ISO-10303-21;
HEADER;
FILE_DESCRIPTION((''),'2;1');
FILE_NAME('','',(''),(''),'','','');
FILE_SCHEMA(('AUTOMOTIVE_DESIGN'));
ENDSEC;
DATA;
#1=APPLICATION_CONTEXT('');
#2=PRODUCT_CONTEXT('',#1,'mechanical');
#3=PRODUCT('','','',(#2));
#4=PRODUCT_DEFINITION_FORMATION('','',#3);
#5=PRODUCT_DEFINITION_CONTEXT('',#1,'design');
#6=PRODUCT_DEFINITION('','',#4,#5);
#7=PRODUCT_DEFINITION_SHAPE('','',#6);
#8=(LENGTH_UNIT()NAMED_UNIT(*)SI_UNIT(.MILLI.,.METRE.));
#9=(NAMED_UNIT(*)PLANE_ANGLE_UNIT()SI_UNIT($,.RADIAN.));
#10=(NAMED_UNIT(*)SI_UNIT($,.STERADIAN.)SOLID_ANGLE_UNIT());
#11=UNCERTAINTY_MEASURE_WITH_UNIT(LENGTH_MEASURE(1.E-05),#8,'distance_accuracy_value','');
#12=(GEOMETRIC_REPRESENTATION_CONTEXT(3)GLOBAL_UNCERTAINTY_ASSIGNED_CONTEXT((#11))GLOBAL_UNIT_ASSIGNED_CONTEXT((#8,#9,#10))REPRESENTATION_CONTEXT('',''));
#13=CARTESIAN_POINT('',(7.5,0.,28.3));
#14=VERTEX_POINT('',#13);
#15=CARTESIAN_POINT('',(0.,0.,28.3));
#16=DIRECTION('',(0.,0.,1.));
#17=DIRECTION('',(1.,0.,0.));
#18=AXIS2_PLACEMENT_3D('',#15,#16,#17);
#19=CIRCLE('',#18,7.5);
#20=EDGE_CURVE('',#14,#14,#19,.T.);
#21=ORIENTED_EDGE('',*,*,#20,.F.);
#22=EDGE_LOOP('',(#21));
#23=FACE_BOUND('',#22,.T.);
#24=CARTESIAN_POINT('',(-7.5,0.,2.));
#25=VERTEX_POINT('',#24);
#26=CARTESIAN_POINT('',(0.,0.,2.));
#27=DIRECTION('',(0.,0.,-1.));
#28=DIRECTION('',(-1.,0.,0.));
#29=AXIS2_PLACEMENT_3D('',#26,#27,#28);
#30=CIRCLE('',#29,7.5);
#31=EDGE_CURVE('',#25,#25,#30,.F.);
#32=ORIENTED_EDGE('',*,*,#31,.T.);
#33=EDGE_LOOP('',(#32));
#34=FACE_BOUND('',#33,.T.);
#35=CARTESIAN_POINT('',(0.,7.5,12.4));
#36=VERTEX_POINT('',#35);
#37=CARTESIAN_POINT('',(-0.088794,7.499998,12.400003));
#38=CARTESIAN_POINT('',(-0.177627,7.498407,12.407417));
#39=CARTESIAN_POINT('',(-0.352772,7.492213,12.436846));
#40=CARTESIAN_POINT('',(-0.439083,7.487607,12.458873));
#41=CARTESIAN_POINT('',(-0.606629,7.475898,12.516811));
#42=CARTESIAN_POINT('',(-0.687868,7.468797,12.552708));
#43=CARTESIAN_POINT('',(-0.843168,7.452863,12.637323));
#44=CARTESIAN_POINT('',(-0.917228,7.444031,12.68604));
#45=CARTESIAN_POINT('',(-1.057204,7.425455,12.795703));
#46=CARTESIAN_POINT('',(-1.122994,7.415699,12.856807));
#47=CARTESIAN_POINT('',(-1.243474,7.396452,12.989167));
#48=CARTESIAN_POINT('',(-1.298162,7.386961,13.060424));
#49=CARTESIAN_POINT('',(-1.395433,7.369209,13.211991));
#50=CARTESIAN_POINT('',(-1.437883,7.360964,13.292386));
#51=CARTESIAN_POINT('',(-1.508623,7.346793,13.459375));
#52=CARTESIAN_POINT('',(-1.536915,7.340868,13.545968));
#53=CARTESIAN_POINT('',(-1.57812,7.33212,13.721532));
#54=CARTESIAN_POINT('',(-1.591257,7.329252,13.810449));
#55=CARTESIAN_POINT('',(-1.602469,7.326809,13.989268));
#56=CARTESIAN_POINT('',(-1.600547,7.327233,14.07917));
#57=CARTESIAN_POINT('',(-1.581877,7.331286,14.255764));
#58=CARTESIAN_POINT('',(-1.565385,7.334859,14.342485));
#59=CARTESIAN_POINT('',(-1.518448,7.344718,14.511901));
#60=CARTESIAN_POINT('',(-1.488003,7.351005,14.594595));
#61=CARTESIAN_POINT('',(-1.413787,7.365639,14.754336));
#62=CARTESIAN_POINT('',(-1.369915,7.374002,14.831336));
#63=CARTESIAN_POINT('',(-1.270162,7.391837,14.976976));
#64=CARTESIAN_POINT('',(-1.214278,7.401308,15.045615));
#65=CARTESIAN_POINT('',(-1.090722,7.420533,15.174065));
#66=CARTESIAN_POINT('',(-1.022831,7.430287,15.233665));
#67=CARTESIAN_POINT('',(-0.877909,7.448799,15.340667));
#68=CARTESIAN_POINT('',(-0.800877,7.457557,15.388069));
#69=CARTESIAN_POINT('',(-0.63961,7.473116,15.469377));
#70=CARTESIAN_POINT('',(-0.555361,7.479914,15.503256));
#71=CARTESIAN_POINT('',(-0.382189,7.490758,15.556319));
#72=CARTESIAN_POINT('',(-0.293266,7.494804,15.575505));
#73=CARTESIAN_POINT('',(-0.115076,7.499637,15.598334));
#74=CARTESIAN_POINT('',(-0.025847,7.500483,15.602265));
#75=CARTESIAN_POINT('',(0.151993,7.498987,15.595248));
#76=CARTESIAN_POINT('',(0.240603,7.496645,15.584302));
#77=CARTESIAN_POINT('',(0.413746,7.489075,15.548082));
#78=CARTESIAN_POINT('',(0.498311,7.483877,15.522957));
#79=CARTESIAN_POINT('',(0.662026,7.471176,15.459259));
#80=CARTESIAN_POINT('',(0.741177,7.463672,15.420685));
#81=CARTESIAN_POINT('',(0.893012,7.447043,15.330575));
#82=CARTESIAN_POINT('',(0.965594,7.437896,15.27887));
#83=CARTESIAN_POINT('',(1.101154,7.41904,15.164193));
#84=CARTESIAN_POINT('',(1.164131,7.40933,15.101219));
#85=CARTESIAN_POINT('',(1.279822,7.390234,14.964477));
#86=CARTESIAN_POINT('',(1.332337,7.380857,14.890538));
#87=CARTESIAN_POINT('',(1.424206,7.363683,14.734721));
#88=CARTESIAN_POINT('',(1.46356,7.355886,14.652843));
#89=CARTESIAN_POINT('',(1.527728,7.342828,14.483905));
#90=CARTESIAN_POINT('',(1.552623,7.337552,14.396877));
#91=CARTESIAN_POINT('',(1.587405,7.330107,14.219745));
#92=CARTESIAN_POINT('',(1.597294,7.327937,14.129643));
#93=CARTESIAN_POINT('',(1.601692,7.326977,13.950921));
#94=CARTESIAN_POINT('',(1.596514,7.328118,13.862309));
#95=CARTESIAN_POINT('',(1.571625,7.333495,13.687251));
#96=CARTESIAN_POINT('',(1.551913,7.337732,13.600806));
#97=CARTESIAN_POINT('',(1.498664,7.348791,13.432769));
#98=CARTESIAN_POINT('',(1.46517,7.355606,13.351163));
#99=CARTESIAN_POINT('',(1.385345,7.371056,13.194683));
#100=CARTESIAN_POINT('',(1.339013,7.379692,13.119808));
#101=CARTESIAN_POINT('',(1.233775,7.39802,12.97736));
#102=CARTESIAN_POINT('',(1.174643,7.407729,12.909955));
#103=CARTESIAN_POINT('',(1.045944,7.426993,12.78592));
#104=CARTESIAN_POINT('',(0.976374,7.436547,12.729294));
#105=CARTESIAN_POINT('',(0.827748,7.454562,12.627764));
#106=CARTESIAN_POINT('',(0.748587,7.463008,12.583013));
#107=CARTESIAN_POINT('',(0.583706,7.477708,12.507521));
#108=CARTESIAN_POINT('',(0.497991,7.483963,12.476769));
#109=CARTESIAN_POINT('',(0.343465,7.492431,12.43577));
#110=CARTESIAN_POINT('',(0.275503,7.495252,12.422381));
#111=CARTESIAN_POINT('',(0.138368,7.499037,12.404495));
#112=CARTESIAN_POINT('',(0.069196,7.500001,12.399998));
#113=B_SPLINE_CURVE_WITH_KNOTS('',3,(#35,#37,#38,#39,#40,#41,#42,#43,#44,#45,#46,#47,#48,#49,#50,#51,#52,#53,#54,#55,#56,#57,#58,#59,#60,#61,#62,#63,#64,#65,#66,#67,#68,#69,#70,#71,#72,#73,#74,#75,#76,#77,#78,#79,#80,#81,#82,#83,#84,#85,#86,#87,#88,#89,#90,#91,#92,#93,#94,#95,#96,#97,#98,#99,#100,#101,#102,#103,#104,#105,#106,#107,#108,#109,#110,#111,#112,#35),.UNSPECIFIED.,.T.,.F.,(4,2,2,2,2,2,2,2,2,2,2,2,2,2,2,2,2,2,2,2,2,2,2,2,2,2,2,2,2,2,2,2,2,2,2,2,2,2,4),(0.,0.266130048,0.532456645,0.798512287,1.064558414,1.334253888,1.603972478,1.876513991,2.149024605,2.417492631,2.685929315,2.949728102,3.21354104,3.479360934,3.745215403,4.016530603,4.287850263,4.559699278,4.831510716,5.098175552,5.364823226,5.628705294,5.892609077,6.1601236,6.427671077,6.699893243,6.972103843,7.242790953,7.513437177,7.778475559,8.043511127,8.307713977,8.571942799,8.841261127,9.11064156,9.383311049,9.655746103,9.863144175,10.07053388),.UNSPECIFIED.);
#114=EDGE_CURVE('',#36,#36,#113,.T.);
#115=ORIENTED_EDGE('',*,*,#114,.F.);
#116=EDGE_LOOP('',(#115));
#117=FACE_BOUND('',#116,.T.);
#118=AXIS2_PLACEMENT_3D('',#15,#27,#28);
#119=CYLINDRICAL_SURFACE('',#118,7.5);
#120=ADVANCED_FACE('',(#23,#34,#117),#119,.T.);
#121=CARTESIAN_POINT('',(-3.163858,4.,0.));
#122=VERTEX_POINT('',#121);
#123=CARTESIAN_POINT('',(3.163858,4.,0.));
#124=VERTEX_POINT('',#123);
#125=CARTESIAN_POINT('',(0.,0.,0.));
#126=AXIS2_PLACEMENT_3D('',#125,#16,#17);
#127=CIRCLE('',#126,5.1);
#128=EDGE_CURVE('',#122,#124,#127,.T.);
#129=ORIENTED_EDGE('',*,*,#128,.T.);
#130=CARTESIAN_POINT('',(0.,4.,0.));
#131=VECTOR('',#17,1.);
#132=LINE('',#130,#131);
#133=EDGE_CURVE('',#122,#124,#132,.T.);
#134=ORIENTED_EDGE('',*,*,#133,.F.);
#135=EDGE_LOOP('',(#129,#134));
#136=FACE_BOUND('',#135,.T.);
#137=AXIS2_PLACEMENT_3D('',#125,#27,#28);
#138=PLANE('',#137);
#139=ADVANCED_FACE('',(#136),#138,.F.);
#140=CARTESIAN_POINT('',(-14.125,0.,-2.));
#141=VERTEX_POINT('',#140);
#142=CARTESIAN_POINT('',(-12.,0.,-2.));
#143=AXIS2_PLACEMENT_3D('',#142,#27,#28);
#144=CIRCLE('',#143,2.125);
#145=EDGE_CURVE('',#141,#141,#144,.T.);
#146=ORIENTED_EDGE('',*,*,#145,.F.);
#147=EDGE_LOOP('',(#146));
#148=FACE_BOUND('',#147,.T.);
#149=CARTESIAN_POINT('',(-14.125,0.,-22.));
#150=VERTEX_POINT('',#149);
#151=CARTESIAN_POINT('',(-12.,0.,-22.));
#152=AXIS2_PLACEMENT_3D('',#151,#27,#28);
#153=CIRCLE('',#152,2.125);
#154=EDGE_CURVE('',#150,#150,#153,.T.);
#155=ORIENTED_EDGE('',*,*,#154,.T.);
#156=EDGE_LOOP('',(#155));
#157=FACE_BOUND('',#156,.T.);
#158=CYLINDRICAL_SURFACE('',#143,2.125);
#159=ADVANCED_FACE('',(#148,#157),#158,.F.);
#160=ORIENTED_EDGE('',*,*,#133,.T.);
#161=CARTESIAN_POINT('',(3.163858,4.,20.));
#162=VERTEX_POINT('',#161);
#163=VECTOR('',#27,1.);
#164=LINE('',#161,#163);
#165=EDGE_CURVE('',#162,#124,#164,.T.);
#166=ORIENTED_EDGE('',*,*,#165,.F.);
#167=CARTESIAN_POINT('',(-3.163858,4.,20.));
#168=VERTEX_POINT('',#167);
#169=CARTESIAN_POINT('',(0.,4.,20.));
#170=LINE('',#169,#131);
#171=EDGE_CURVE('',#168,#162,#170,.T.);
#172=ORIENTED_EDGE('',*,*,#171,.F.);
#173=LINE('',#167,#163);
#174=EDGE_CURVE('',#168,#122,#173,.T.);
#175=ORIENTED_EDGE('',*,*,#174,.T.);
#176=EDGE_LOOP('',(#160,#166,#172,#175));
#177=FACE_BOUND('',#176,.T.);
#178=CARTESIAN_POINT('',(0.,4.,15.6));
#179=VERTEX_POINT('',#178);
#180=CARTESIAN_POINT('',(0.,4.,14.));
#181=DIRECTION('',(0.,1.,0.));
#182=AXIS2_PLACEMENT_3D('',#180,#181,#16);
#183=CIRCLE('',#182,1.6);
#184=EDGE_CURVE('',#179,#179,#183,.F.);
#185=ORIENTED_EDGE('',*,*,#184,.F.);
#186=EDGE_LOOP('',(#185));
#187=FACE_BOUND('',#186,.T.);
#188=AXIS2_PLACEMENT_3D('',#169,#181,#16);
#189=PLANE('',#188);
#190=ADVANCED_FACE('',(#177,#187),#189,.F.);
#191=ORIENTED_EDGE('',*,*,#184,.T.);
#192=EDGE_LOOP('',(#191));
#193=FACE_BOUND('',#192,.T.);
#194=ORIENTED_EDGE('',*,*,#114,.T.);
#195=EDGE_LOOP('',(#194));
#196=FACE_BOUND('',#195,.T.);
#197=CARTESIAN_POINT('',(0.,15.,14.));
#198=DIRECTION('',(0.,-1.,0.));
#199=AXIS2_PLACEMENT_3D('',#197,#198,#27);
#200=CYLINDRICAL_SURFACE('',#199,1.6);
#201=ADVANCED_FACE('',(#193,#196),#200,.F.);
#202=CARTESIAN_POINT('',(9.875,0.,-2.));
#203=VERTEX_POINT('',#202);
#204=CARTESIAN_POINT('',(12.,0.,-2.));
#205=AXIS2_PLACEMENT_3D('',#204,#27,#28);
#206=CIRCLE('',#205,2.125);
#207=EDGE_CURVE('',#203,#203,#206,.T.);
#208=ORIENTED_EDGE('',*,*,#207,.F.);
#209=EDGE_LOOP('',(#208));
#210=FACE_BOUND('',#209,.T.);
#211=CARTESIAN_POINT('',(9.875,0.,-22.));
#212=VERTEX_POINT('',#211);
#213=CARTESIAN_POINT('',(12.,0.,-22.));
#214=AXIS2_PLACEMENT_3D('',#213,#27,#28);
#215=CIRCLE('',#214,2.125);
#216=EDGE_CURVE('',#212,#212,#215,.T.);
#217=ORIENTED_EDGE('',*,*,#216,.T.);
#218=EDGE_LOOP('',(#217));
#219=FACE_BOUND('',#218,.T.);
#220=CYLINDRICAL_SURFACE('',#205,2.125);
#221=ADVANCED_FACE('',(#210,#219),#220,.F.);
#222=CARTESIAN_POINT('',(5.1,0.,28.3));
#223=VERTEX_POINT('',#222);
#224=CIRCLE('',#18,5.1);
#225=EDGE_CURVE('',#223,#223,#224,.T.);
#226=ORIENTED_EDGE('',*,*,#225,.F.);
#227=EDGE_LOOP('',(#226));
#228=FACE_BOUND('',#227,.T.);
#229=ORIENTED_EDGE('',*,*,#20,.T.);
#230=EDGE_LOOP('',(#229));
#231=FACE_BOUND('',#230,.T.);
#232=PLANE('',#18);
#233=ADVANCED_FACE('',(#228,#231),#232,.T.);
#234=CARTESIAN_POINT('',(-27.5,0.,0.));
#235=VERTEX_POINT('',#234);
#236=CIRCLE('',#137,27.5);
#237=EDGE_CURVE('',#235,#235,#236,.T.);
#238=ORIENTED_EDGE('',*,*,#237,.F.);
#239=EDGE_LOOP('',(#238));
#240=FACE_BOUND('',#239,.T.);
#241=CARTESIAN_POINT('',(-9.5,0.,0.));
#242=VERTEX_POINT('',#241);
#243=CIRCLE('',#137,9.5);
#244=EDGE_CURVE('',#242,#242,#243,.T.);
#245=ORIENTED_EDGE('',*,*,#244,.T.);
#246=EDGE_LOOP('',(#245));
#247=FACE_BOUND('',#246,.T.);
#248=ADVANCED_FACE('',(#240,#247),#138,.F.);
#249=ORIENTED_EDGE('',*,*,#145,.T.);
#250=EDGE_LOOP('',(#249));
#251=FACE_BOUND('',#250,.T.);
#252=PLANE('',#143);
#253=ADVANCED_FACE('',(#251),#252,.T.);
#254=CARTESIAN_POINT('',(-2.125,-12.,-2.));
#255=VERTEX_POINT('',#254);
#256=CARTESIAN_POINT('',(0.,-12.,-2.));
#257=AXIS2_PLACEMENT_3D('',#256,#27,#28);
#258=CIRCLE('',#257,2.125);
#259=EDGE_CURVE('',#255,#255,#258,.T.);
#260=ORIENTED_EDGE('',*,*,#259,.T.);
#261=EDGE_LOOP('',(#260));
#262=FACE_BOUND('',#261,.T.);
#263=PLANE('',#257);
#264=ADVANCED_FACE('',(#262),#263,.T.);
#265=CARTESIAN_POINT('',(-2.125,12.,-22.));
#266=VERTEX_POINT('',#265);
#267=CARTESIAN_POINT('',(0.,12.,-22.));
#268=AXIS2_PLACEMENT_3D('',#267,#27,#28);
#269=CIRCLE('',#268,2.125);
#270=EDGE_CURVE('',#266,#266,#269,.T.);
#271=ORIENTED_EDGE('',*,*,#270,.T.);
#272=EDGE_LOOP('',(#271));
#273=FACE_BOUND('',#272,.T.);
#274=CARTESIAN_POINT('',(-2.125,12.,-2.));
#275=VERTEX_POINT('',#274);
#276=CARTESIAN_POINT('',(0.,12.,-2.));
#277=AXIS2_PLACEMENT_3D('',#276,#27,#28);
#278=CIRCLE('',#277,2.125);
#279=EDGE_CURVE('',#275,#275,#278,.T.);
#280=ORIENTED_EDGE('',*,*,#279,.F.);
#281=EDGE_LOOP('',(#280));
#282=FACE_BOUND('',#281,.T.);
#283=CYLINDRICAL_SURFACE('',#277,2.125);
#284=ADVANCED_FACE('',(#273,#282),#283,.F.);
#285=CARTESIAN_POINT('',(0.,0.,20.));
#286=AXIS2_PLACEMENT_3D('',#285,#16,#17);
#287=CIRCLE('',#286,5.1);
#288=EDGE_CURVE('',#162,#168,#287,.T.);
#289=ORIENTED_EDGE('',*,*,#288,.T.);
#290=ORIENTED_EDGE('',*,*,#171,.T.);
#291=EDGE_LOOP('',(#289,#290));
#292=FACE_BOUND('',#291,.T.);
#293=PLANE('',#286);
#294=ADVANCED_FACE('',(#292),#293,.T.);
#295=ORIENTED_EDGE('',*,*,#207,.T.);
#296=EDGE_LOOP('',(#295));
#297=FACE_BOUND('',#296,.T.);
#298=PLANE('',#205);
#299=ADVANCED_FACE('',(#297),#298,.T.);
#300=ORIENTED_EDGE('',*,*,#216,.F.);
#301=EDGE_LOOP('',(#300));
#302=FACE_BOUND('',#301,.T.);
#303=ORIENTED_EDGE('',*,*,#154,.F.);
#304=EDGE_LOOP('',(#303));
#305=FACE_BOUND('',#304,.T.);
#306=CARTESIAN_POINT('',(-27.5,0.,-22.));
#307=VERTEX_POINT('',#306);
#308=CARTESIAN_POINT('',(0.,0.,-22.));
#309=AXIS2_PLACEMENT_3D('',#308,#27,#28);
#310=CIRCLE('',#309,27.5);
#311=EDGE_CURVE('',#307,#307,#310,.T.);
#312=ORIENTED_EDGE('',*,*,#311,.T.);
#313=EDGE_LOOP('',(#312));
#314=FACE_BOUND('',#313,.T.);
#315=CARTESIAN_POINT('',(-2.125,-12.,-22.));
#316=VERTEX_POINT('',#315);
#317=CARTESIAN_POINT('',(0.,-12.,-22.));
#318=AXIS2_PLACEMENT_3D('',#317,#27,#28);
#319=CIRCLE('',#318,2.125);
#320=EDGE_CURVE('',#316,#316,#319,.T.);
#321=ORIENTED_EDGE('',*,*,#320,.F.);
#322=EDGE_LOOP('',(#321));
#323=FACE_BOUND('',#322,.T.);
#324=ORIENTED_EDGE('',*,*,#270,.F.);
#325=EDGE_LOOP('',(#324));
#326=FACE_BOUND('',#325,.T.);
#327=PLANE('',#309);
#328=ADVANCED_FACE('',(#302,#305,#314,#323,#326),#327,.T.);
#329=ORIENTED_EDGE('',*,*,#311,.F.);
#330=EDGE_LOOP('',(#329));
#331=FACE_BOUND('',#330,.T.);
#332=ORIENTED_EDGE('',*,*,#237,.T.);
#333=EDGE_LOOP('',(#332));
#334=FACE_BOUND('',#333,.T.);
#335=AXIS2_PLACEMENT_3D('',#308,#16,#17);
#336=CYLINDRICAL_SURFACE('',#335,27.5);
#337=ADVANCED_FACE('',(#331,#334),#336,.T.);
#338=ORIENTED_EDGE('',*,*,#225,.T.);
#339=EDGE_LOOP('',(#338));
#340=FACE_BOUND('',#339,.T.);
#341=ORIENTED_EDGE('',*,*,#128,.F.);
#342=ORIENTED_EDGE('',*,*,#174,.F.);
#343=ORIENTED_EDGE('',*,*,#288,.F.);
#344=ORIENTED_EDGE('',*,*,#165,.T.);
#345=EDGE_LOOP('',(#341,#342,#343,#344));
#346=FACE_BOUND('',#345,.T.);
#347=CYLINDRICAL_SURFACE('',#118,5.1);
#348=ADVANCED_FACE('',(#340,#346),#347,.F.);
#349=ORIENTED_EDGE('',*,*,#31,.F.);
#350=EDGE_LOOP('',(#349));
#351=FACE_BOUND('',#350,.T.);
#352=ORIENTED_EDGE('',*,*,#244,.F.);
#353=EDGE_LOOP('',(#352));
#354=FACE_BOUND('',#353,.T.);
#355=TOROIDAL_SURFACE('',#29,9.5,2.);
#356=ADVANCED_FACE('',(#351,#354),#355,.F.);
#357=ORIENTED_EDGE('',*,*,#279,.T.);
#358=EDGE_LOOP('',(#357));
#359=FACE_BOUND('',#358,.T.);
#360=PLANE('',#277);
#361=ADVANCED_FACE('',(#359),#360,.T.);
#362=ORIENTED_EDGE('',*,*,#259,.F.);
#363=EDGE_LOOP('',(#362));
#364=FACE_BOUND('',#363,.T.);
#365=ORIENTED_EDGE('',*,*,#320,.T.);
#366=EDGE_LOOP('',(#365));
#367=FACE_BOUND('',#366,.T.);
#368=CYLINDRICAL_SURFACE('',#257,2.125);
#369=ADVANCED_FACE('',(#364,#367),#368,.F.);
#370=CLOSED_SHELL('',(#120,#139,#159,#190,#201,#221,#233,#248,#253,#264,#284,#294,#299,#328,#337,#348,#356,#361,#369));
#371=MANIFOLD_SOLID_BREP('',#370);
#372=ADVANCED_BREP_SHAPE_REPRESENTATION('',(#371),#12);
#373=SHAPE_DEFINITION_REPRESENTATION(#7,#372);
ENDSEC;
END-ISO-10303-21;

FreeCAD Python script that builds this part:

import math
import FreeCAD as App
import Part
import Sketcher


def edges_at(feature, points):
    """Names of the edges that pass closest to the given points."""
    edges = feature.Shape.Edges
    near = lambda p: min(range(len(edges)), key=lambda i: edges[i].distToShape(Part.Vertex(*p))[0])
    return sorted({f"Edge{near(p) + 1}" for p in points})

doc = App.newDocument("Part")
body = doc.addObject("PartDesign::Body", "Body")

sketch1 = doc.addObject("Sketcher::SketchObject", "Sketch")
body.addObject(sketch1)
sketch1.AttachmentSupport = (doc.XY_Plane, [""])
sketch1.MapMode = "FlatFace"
sketch1.addGeometry(Part.Circle(App.Vector(0, 0, 0), App.Vector(0, 0, 1), 8), False)
sketch1.addGeometry(Part.Circle(App.Vector(0, 0, 0), App.Vector(0, 0, 1), 5), False)
sketch1.addConstraint(Sketcher.Constraint("Coincident", 0, 3, -1, 1))
sketch1.addConstraint(Sketcher.Constraint("Coincident", 1, 3, -1, 1))
sketch1.addConstraint(Sketcher.Constraint("Diameter", 0, 15.0))
sketch1.addConstraint(Sketcher.Constraint("Diameter", 1, 10.2))
pad1 = doc.addObject("PartDesign::Pad", "Pad")
body.addObject(pad1)
pad1.Profile = sketch1
pad1.Length = 28.3

sketch2 = doc.addObject("Sketcher::SketchObject", "Sketch001")
body.addObject(sketch2)
sketch2.AttachmentSupport = (doc.XY_Plane, [""])
sketch2.MapMode = "FlatFace"
sketch2.addGeometry(Part.Circle(App.Vector(0, 0, 0), App.Vector(0, 0, 1), 28), False)
sketch2.addConstraint(Sketcher.Constraint("Coincident", 0, 3, -1, 1))
sketch2.addConstraint(Sketcher.Constraint("Diameter", 0, 55.0))
pad2 = doc.addObject("PartDesign::Pad", "Pad001")
body.addObject(pad2)
pad2.Profile = sketch2
pad2.Length = 22
pad2.Reversed = True
doc.recompute()

fillet = doc.addObject("PartDesign::Fillet", "Fillet")
body.addObject(fillet)
fillet.Base = (pad2, edges_at(pad2, [(-7.5, 0, 0)]))
fillet.Radius = 2

sketch3 = doc.addObject("Sketcher::SketchObject", "Sketch002")
body.addObject(sketch3)
sketch3.AttachmentSupport = (doc.XY_Plane, [""])
sketch3.MapMode = "FlatFace"
sketch3.AttachmentOffset = App.Placement(App.Vector(0, 0, -22), App.Rotation())
sketch3.addGeometry(Part.Circle(App.Vector(0, 12, 0), App.Vector(0, 0, 1), 2.1), False)
sketch3.addGeometry(Part.Circle(App.Vector(-12, 0, 0), App.Vector(0, 0, 1), 2.1), False)
sketch3.addGeometry(Part.Circle(App.Vector(0, -12, 0), App.Vector(0, 0, 1), 2.1), False)
sketch3.addGeometry(Part.Circle(App.Vector(12, 0, 0), App.Vector(0, 0, 1), 2.1), False)
sketch3.addConstraint(Sketcher.Constraint("Equal", 0, 1))
sketch3.addConstraint(Sketcher.Constraint("Equal", 1, 2))
sketch3.addConstraint(Sketcher.Constraint("Equal", 2, 3))
sketch3.addConstraint(Sketcher.Constraint("Symmetric", 0, 3, 2, 3, -1, 1))
sketch3.addConstraint(Sketcher.Constraint("Symmetric", 1, 3, 3, 3, -1, 1))
sketch3.addConstraint(Sketcher.Constraint("PointOnObject", 0, 3, -2))
sketch3.addConstraint(Sketcher.Constraint("PointOnObject", 1, 3, -1))
sketch3.addConstraint(Sketcher.Constraint("Diameter", 0, 4.25))
sketch3.addConstraint(Sketcher.Constraint("DistanceY", -1, 1, 0, 3, 12.0))
sketch3.addConstraint(Sketcher.Constraint("DistanceX", 1, 3, -1, 1, 12.0))
pocket1 = doc.addObject("PartDesign::Pocket", "Pocket")
body.addObject(pocket1)
pocket1.Profile = sketch3
pocket1.Length = 20
pocket1.Reversed = True

sketch4 = doc.addObject("Sketcher::SketchObject", "Sketch003")
body.addObject(sketch4)
sketch4.AttachmentSupport = (doc.XY_Plane, [""])
sketch4.MapMode = "FlatFace"
sketch4.addGeometry(Part.ArcOfCircle(Part.Circle(App.Vector(0, 0, 0), App.Vector(0, 0, 1), 5), math.radians(52), math.radians(128)), False)
sketch4.addGeometry(Part.LineSegment(App.Vector(-3, 4, 0), App.Vector(3, 4, 0)), False)
sketch4.addConstraint(Sketcher.Constraint("Coincident", 0, 1, 1, 2))
sketch4.addConstraint(Sketcher.Constraint("Coincident", 1, 1, 0, 2))
sketch4.addConstraint(Sketcher.Constraint("Horizontal", 1))
sketch4.addConstraint(Sketcher.Constraint("Coincident", 0, 3, -1, 1))
sketch4.addConstraint(Sketcher.Constraint("Radius", 0, 5.1))
sketch4.addConstraint(Sketcher.Constraint("DistanceY", -1, 1, 0, 1, 4.0))
pad3 = doc.addObject("PartDesign::Pad", "Pad002")
body.addObject(pad3)
pad3.Profile = sketch4
pad3.Length = 20

sketch5 = doc.addObject("Sketcher::SketchObject", "Sketch004")
body.addObject(sketch5)
sketch5.AttachmentSupport = (doc.XZ_Plane, [""])
sketch5.MapMode = "FlatFace"
sketch5.addGeometry(Part.Circle(App.Vector(0, 14, 0), App.Vector(0, 0, 1), 1.6), False)
sketch5.addConstraint(Sketcher.Constraint("PointOnObject", 0, 3, -2))
sketch5.addConstraint(Sketcher.Constraint("Diameter", 0, 3.2))
sketch5.addConstraint(Sketcher.Constraint("DistanceY", -1, 1, 0, 3, 14.0))
pocket2 = doc.addObject("PartDesign::Pocket", "Pocket001")
body.addObject(pocket2)
pocket2.Profile = sketch5
pocket2.Length = 15

doc.recompute()
